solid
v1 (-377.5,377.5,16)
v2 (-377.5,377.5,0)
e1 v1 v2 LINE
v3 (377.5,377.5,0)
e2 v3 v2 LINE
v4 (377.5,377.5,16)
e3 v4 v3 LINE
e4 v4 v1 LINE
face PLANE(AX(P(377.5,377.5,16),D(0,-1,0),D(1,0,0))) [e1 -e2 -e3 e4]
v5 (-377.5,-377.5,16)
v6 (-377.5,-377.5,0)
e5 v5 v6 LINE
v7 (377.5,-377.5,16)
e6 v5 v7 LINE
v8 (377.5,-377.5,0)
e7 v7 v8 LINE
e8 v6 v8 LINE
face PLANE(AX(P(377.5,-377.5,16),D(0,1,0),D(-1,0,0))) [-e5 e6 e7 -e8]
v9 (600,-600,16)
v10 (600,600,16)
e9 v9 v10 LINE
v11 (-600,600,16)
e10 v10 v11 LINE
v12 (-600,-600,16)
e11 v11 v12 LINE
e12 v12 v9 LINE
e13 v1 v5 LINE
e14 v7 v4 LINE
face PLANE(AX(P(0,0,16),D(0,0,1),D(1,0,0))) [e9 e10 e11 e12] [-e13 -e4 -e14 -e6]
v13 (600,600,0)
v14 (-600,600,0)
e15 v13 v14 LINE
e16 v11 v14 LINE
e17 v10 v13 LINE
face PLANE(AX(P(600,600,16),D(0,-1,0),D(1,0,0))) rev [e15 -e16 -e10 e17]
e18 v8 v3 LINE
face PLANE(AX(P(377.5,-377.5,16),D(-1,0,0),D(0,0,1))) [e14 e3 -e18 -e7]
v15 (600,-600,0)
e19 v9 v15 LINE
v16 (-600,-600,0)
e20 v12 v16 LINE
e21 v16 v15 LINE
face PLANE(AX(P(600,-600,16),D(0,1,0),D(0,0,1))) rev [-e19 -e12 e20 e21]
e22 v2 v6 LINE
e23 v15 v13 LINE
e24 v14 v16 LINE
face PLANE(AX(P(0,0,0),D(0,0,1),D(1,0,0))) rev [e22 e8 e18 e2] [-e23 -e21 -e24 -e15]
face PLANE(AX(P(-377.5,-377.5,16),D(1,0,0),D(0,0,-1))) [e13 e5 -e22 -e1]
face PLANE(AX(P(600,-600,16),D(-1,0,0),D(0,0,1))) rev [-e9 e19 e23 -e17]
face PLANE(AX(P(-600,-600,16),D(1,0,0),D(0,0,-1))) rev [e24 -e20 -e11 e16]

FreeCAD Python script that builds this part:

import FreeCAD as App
import Part
import Sketcher
Q = App.Units.Quantity

doc = App.newDocument("Part")
body = doc.addObject("PartDesign::Body", "Body")

sketch1 = body.newObject("Sketcher::SketchObject", "Sketch")
sketch1.AttachmentSupport = (doc.getObject("XY_Plane"), [""])
sketch1.MapMode = "FlatFace"
sketch1.addGeometry([
    Part.LineSegment(App.Vector(-600, 600, 0), App.Vector(-600, -600, 0)),
    Part.LineSegment(App.Vector(-600, -600, 0), App.Vector(600, -600, 0)),
    Part.LineSegment(App.Vector(600, -600, 0), App.Vector(600, 600, 0)),
    Part.LineSegment(App.Vector(600, 600, 0), App.Vector(-600, 600, 0)),
    Part.LineSegment(App.Vector(377.5, -377.5, 0), App.Vector(-377.5, -377.5, 0)),
    Part.LineSegment(App.Vector(-377.5, -377.5, 0), App.Vector(-377.5, 377.5, 0)),
    Part.LineSegment(App.Vector(-377.5, 377.5, 0), App.Vector(377.5, 377.5, 0)),
    Part.LineSegment(App.Vector(377.5, 377.5, 0), App.Vector(377.5, -377.5, 0)),
], False)
sketch1.addConstraint([
    Sketcher.Constraint("Coincident", 0, 2, 1, 1),
    Sketcher.Constraint("Coincident", 1, 2, 2, 1),
    Sketcher.Constraint("Coincident", 2, 2, 3, 1),
    Sketcher.Constraint("Coincident", 3, 2, 0, 1),
    Sketcher.Constraint("Coincident", 4, 2, 5, 1),
    Sketcher.Constraint("Coincident", 5, 2, 6, 1),
    Sketcher.Constraint("Coincident", 6, 2, 7, 1),
    Sketcher.Constraint("Coincident", 7, 2, 4, 1),
    Sketcher.Constraint("Vertical", 0),
    Sketcher.Constraint("Horizontal", 1),
    Sketcher.Constraint("Vertical", 2),
    Sketcher.Constraint("Horizontal", 3),
    Sketcher.Constraint("Horizontal", 4),
    Sketcher.Constraint("Vertical", 5),
    Sketcher.Constraint("Horizontal", 6),
    Sketcher.Constraint("Vertical", 7),
    Sketcher.Constraint("Symmetric", 0, 2, 2, 2, -1, 1),
    Sketcher.Constraint("Symmetric", 4, 2, 6, 2, -1, 1),
    Sketcher.Constraint("Equal", 3, 0),
    Sketcher.Constraint("Equal", 6, 5),
    Sketcher.Constraint("DistanceX", 1, 1, 1, 2, Q("1200 mm")),
    Sketcher.Constraint("DistanceX", 4, 2, 4, 1, Q("755 mm")),
])
pad1 = body.newObject("PartDesign::Pad", "Pad")
pad1.Profile = sketch1
pad1.Length = 16

doc.recompute()
